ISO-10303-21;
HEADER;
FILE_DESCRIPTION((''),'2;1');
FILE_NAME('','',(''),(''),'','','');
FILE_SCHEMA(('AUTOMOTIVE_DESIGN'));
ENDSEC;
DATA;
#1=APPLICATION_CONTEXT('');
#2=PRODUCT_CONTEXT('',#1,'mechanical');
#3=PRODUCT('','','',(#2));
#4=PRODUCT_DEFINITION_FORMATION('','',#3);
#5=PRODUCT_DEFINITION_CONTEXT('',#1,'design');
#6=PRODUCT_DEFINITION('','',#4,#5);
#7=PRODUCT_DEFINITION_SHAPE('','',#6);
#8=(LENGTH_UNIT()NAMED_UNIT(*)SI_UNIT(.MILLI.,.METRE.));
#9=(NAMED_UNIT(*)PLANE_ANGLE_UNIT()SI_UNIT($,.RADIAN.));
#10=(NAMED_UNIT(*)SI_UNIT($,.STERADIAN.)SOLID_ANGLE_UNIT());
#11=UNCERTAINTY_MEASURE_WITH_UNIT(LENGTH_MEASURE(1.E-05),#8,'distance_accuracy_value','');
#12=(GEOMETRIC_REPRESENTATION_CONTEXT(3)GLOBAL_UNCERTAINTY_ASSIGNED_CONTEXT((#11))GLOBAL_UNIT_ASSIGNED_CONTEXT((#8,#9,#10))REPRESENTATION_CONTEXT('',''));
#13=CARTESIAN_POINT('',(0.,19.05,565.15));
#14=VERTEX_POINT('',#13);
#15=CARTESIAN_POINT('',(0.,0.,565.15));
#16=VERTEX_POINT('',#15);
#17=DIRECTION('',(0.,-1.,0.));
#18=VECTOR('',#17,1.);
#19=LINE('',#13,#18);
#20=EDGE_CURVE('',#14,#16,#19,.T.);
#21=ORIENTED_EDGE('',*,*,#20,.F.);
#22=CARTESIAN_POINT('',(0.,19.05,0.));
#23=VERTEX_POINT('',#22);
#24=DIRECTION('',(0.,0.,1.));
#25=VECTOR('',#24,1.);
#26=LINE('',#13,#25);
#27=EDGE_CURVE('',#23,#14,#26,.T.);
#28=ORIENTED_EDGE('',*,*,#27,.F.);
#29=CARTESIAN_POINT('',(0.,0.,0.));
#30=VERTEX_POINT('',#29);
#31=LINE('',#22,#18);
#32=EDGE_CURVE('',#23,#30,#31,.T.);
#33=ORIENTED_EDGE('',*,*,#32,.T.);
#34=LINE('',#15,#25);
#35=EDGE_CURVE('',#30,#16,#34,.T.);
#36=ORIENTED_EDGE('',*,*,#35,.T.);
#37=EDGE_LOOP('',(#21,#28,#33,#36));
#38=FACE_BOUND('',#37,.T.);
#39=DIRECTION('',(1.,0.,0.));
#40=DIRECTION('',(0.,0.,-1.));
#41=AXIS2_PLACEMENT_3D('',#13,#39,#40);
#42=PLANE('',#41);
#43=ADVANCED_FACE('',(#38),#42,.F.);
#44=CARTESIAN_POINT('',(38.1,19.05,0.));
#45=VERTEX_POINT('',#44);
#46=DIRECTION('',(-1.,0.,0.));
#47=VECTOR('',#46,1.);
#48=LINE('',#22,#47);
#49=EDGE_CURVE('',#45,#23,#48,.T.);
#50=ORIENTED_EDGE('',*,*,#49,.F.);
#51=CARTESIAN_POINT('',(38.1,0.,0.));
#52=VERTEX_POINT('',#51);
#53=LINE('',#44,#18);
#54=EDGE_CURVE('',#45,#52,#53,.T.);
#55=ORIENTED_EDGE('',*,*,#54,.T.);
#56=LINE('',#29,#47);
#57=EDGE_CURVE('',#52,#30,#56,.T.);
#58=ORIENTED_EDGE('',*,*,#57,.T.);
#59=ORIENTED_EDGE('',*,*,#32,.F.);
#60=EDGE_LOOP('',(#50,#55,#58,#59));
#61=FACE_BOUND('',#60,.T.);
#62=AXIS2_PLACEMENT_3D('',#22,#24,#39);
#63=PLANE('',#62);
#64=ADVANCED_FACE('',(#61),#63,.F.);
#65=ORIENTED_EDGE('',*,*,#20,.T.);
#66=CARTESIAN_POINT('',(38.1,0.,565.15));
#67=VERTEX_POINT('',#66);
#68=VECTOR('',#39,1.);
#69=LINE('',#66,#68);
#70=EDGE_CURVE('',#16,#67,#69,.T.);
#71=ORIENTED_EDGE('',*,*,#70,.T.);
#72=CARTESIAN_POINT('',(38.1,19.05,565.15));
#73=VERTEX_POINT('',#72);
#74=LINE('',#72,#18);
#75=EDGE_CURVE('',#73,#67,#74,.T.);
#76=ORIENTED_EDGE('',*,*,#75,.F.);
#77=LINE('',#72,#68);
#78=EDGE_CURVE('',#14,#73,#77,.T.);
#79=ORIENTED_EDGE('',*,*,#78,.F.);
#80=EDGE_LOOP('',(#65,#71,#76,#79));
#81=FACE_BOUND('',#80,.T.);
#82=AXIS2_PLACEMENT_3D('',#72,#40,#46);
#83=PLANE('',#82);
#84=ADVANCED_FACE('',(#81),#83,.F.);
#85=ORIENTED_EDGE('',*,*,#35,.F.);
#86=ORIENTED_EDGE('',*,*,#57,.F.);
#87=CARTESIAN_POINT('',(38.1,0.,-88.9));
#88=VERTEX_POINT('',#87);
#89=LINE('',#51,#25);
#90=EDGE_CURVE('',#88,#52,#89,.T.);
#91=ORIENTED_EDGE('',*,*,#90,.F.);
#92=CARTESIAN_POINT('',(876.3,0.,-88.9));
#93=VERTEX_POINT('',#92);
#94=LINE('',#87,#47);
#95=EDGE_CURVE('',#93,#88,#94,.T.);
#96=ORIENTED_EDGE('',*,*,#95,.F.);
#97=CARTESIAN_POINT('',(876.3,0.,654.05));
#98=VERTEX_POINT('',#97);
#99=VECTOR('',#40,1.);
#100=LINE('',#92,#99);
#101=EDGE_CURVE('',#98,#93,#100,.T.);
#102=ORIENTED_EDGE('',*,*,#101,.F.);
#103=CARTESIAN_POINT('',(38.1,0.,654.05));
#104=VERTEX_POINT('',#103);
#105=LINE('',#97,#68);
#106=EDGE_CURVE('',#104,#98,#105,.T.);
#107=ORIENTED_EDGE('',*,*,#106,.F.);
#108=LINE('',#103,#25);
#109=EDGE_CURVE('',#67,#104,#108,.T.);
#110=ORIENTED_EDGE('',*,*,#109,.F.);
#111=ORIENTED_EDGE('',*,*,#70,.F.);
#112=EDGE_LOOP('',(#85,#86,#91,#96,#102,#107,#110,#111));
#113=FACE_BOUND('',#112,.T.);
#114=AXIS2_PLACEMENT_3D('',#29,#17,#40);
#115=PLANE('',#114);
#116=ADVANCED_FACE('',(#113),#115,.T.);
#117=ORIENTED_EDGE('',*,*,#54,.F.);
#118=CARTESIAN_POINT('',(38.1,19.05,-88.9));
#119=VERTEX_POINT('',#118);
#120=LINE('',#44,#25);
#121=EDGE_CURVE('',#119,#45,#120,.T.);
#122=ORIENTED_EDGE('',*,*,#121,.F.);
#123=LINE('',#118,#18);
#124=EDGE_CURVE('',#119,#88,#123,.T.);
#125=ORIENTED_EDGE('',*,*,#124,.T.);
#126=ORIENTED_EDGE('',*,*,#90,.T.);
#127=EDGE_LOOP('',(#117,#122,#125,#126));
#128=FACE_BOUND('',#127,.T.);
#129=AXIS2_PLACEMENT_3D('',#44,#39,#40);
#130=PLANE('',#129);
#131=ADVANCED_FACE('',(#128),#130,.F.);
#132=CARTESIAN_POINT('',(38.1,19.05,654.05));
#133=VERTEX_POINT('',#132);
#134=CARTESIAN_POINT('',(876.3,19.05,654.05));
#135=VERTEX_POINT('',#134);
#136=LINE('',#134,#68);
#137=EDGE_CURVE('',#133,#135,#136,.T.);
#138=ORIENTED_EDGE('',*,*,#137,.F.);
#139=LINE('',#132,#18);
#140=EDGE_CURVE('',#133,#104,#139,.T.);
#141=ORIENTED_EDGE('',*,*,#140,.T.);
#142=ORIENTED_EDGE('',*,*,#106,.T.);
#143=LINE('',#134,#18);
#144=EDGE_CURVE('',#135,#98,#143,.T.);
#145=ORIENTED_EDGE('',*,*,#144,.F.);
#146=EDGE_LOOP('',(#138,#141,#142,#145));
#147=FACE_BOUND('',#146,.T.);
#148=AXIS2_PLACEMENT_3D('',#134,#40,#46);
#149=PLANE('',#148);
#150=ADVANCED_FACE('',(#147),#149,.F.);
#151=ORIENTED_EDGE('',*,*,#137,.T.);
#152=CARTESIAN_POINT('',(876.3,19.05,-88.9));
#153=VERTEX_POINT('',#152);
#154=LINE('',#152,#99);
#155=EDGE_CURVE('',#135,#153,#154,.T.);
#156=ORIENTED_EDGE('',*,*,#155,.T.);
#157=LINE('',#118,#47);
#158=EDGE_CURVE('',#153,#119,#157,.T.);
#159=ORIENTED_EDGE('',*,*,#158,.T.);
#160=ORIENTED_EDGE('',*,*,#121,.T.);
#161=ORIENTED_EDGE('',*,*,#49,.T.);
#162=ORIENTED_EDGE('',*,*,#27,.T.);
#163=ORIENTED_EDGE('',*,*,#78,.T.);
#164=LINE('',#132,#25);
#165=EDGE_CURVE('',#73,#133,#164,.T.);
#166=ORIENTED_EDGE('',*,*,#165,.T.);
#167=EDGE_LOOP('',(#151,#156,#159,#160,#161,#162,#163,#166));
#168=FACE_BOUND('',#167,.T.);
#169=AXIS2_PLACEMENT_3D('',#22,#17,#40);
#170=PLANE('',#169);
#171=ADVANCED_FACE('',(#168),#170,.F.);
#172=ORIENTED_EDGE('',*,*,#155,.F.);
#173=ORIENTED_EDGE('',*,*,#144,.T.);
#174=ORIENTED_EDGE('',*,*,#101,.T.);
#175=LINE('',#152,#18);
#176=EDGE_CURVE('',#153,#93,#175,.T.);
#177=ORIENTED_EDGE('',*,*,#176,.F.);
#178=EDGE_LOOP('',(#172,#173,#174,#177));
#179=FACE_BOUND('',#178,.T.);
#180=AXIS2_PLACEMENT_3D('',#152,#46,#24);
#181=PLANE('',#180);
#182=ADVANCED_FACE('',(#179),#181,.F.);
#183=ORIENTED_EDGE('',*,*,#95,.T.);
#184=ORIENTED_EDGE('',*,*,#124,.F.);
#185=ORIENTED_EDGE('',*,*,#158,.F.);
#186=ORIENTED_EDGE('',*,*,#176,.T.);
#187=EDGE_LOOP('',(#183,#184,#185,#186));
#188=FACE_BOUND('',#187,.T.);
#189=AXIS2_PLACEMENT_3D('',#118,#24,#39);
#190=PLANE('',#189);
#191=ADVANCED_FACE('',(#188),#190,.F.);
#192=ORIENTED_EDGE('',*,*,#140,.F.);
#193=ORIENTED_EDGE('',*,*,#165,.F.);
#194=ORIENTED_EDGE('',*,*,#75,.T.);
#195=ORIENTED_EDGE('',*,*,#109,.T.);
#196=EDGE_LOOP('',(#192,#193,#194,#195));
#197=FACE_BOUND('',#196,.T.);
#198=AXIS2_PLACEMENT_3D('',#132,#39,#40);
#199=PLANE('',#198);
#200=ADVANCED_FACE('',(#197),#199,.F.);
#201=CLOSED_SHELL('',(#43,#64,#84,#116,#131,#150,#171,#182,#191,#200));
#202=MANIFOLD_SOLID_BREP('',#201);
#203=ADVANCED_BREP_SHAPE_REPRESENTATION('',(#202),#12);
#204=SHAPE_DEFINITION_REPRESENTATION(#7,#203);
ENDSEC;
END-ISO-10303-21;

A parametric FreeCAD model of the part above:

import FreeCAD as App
import Part
import Sketcher

V = App.Vector
Q = App.Units.Quantity

doc = App.newDocument("Part")
body = doc.addObject("PartDesign::Body", "Body")

sketch1 = body.newObject("Sketcher::SketchObject", "Sketch")
sketch1.AttachmentSupport = (doc.getObject("XZ_Plane"), [""])
sketch1.MapMode = "FlatFace"
sketch1.addGeometry(Part.LineSegment(V(38.1, 0, 0), V(0, 0, 0)), False)
sketch1.addGeometry(Part.LineSegment(V(0, 0, 0), V(0, 565.15, 0)), False)
sketch1.addGeometry(Part.LineSegment(V(0, 565.15, 0), V(38.1, 565.15, 0)), False)
sketch1.addGeometry(Part.LineSegment(V(38.1, 565.15, 0), V(38.1, 654.05, 0)), False)
sketch1.addGeometry(Part.LineSegment(V(38.1, 654.05, 0), V(876.3, 654.05, 0)), False)
sketch1.addGeometry(Part.LineSegment(V(876.3, 654.05, 0), V(876.3, -88.9, 0)), False)
sketch1.addGeometry(Part.LineSegment(V(876.3, -88.9, 0), V(38.1, -88.9, 0)), False)
sketch1.addGeometry(Part.LineSegment(V(38.1, -88.9, 0), V(38.1, 0, 0)), False)
sketch1.addConstraint(Sketcher.Constraint("Coincident", 0, 2, 1, 1))
sketch1.addConstraint(Sketcher.Constraint("Coincident", 1, 2, 2, 1))
sketch1.addConstraint(Sketcher.Constraint("Coincident", 2, 2, 3, 1))
sketch1.addConstraint(Sketcher.Constraint("Coincident", 3, 2, 4, 1))
sketch1.addConstraint(Sketcher.Constraint("Coincident", 4, 2, 5, 1))
sketch1.addConstraint(Sketcher.Constraint("Coincident", 5, 2, 6, 1))
sketch1.addConstraint(Sketcher.Constraint("Coincident", 6, 2, 7, 1))
sketch1.addConstraint(Sketcher.Constraint("Coincident", 7, 2, 0, 1))
sketch1.addConstraint(Sketcher.Constraint("Horizontal", 0))
sketch1.addConstraint(Sketcher.Constraint("Vertical", 1))
sketch1.addConstraint(Sketcher.Constraint("Horizontal", 2))
sketch1.addConstraint(Sketcher.Constraint("Vertical", 3))
sketch1.addConstraint(Sketcher.Constraint("Horizontal", 4))
sketch1.addConstraint(Sketcher.Constraint("Vertical", 5))
sketch1.addConstraint(Sketcher.Constraint("Horizontal", 6))
sketch1.addConstraint(Sketcher.Constraint("Vertical", 7))
sketch1.addConstraint(Sketcher.Constraint("Coincident", 0, 2, -1, 1))
sketch1.addConstraint(Sketcher.Constraint("Vertical", 3, 2, 6, 2))
sketch1.addConstraint(Sketcher.Constraint("Equal", 3, 7))
sketch1.addConstraint(Sketcher.Constraint("DistanceX", 4, 1, 4, 2, Q("33 in")))
sketch1.addConstraint(Sketcher.Constraint("DistanceX", 0, 2, 0, 1, Q("1.5 in")))
sketch1.addConstraint(Sketcher.Constraint("DistanceY", 3, 1, 3, 2, Q("3.5 in")))
sketch1.addConstraint(Sketcher.Constraint("DistanceY", 1, 1, 1, 2, Q("22.25 in")))
pad1 = body.newObject("PartDesign::Pad", "Pad")
pad1.Profile = sketch1
pad1.Length = Q("0.75 in")
pad1.Reversed = True

doc.recompute()
